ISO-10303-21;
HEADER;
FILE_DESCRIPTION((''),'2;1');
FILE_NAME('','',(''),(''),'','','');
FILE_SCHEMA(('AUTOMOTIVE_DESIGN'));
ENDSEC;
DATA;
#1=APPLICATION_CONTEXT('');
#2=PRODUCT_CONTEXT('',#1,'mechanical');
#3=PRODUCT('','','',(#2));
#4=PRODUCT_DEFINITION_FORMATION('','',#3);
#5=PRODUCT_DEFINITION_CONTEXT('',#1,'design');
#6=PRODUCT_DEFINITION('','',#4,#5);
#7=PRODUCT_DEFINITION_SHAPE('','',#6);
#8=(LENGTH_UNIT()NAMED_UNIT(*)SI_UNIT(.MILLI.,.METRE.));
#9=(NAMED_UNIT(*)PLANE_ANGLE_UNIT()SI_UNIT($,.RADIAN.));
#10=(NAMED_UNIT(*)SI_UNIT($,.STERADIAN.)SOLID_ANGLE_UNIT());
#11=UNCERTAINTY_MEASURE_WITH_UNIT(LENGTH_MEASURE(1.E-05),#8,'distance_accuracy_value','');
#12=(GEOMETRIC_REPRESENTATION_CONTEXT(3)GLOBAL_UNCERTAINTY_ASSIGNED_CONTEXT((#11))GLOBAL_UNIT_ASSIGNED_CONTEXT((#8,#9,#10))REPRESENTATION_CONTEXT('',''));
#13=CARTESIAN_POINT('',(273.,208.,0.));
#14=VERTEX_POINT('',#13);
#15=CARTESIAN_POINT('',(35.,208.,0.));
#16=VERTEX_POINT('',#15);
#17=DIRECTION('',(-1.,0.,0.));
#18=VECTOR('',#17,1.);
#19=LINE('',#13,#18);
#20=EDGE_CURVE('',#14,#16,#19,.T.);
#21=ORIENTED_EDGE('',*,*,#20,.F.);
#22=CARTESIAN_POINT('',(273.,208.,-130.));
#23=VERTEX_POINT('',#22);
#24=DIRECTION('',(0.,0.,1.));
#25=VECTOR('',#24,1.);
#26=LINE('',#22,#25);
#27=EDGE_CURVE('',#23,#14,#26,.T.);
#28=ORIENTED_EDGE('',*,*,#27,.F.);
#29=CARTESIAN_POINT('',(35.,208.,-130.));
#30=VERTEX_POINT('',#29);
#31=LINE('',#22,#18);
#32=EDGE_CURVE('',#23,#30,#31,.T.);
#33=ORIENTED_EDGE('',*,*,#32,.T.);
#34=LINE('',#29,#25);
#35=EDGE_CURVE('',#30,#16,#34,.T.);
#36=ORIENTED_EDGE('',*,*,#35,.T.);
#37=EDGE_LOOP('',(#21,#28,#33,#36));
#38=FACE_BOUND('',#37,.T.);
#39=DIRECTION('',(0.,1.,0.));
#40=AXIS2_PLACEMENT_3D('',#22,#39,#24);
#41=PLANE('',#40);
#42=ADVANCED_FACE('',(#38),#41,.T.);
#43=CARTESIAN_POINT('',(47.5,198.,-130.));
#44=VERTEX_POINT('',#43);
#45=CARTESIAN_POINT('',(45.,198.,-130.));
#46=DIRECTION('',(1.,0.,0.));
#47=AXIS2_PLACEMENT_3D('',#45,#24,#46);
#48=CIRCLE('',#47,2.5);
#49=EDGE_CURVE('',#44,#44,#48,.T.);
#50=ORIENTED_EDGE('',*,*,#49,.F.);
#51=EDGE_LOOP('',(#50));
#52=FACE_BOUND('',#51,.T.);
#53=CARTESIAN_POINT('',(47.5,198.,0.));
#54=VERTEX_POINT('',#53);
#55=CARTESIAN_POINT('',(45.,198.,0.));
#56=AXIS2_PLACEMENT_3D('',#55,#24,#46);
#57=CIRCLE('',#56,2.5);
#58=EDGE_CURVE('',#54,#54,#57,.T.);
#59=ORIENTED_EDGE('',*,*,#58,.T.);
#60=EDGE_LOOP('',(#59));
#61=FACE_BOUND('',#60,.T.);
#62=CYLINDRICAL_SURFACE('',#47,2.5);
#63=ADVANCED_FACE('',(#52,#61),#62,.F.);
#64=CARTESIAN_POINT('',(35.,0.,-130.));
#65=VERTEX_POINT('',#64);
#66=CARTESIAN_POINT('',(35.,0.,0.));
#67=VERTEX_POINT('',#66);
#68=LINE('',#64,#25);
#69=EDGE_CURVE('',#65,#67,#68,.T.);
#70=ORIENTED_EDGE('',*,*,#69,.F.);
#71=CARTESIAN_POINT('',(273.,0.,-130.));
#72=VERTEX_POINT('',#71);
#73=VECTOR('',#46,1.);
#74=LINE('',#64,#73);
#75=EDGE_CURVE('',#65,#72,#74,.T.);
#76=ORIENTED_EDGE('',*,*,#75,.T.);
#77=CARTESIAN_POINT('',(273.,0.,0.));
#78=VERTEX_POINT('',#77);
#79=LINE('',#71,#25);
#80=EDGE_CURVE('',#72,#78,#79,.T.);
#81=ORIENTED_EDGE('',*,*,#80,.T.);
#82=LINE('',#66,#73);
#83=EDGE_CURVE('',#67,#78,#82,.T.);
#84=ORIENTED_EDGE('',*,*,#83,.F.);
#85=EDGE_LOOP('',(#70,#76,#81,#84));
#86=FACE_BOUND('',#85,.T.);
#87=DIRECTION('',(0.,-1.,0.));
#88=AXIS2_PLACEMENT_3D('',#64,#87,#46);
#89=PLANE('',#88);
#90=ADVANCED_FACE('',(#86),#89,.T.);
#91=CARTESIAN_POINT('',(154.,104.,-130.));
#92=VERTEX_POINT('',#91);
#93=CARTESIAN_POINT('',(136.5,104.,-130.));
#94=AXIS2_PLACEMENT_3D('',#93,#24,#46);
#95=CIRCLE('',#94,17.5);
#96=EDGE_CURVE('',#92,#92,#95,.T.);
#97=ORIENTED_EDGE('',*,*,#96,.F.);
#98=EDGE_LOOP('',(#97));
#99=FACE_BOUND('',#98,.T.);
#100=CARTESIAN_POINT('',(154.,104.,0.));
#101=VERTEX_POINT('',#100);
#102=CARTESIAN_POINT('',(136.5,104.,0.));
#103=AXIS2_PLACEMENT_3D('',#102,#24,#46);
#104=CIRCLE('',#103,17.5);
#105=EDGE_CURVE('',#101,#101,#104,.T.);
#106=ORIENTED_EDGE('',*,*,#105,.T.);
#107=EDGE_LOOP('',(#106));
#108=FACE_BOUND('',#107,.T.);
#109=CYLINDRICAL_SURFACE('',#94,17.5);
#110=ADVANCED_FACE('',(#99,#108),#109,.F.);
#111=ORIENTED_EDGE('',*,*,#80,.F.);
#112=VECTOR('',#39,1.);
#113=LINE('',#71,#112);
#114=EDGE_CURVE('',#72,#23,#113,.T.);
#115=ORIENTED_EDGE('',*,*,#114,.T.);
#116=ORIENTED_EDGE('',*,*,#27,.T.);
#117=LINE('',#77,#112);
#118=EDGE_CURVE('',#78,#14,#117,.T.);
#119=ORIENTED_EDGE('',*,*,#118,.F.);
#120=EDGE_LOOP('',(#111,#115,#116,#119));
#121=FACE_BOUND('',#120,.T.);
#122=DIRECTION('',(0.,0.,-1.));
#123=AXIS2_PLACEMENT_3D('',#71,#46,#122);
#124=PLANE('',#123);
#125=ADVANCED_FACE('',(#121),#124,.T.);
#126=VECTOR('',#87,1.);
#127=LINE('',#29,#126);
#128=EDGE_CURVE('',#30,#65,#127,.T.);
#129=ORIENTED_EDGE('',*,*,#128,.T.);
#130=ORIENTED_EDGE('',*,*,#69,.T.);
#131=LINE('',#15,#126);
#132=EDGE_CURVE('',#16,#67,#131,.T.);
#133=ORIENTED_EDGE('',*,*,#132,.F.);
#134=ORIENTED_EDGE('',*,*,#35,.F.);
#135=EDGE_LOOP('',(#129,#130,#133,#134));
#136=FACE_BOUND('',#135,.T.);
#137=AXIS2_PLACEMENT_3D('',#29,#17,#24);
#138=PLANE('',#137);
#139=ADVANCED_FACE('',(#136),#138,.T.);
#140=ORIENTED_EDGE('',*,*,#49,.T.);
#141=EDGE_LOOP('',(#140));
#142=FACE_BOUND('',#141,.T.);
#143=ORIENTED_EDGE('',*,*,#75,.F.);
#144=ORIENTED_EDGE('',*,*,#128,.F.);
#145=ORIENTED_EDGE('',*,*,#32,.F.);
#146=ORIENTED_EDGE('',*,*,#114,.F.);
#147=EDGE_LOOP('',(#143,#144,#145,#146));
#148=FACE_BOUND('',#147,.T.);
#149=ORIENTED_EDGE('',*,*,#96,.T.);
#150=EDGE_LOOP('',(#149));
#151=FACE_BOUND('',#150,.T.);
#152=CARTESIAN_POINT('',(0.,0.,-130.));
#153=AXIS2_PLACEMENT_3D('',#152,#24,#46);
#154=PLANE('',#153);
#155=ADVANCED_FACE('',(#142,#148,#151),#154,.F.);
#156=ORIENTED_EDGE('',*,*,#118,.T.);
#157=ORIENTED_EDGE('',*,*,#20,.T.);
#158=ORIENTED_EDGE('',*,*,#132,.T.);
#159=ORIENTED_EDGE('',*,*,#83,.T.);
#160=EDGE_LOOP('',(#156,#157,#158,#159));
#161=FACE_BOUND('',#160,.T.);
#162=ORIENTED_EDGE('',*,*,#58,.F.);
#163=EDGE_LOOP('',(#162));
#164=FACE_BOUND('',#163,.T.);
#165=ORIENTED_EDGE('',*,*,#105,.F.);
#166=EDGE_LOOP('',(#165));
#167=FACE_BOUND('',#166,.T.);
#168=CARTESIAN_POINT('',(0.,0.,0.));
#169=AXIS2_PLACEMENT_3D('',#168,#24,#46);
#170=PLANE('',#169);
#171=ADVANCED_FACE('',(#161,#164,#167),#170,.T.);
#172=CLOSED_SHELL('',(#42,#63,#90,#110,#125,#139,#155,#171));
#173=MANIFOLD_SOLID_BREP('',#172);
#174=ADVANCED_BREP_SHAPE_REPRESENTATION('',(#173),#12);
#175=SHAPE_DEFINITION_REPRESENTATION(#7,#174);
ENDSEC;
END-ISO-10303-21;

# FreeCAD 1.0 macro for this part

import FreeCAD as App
import Part
import Sketcher
from FreeCAD import Vector
Q = App.Units.Quantity


def add_polygon(sketch, points):
    """Adds a closed chain of lines whose ends are joined by coincident constraints."""
    first, n = sketch.GeometryCount, len(points)
    for a, b in zip(points, points[1:] + points[:1]):
        sketch.addGeometry(Part.LineSegment(App.Vector(*a, 0), App.Vector(*b, 0)), False)
    for i in range(n):
        sketch.addConstraint(Sketcher.Constraint("Coincident", first + i, 2, first + (i + 1) % n, 1))

doc = App.newDocument("Part")
params = doc.addObject("Spreadsheet::Sheet", "Params")
for row, (alias, value) in enumerate([
    ("sketch1_diameter", "35 mm"),
    ("sketch1_diameter2", "5 mm"),
    ("sketch1_width", "238 mm"),
    ("sketch1_height", "208 mm"),
    ("pad1_length", "130 mm"),
], start=1):
    params.set(f"A{row}", alias)
    params.set(f"B{row}", "=" + value)
    params.setAlias(f"B{row}", alias)

body = doc.addObject("PartDesign::Body", "Body")

# Sketch on XY plane
sketch1 = doc.addObject("Sketcher::SketchObject", "Sketch")
body.addObject(sketch1)
sketch1.AttachmentSupport = (doc.XY_Plane, [""])
sketch1.MapMode = "FlatFace"
add_polygon(sketch1, [(35, 208), (35, 0), (273, 0), (273, 208)])  # lines 0-3
sketch1.addGeometry(Part.Circle(Vector(136.5, 104, 0), Vector(0, 0, 1), 17.5), False)  # 4
sketch1.addGeometry(Part.Circle(Vector(45, 198, 0), Vector(0, 0, 1), 2.5), False)  # 5
sketch1.addConstraint(Sketcher.Constraint("Vertical", 0))
sketch1.addConstraint(Sketcher.Constraint("Horizontal", 1))
sketch1.addConstraint(Sketcher.Constraint("Vertical", 2))
sketch1.addConstraint(Sketcher.Constraint("Horizontal", 3))
sketch1.addConstraint(Sketcher.Constraint("PointOnObject", 0, 2, -1))
sketch1.addConstraint(Sketcher.Constraint("Diameter", 4, Q("35 mm")))
sketch1.addConstraint(Sketcher.Constraint("Diameter", 5, Q("5 mm")))
sketch1.addConstraint(Sketcher.Constraint("DistanceX", 1, 1, 1, 2, Q("238 mm")))
sketch1.addConstraint(Sketcher.Constraint("DistanceY", 0, 2, 0, 1, Q("208 mm")))
sketch1.addConstraint(Sketcher.Constraint("DistanceY", -1, 1, 4, 3, Q("104 mm")))
sketch1.addConstraint(Sketcher.Constraint("DistanceX", -1, 1, 5, 3, Q("45 mm")))
sketch1.addConstraint(Sketcher.Constraint("DistanceY", -1, 1, 5, 3, Q("198 mm")))
sketch1.addConstraint(Sketcher.Constraint("DistanceX", -1, 1, 0, 2, Q("35 mm")))
sketch1.addConstraint(Sketcher.Constraint("DistanceX", -1, 1, 4, 3, Q("136.5 mm")))
sketch1.setExpression("Constraints[9]", "Params.sketch1_diameter")
sketch1.setExpression("Constraints[10]", "Params.sketch1_diameter2")
sketch1.setExpression("Constraints[11]", "Params.sketch1_width")
sketch1.setExpression("Constraints[12]", "Params.sketch1_height")
pad1 = doc.addObject("PartDesign::Pad", "Pad")
body.addObject(pad1)
pad1.Profile = sketch1
pad1.setExpression("Length", "Params.pad1_length")
pad1.Reversed = True

doc.recompute()
